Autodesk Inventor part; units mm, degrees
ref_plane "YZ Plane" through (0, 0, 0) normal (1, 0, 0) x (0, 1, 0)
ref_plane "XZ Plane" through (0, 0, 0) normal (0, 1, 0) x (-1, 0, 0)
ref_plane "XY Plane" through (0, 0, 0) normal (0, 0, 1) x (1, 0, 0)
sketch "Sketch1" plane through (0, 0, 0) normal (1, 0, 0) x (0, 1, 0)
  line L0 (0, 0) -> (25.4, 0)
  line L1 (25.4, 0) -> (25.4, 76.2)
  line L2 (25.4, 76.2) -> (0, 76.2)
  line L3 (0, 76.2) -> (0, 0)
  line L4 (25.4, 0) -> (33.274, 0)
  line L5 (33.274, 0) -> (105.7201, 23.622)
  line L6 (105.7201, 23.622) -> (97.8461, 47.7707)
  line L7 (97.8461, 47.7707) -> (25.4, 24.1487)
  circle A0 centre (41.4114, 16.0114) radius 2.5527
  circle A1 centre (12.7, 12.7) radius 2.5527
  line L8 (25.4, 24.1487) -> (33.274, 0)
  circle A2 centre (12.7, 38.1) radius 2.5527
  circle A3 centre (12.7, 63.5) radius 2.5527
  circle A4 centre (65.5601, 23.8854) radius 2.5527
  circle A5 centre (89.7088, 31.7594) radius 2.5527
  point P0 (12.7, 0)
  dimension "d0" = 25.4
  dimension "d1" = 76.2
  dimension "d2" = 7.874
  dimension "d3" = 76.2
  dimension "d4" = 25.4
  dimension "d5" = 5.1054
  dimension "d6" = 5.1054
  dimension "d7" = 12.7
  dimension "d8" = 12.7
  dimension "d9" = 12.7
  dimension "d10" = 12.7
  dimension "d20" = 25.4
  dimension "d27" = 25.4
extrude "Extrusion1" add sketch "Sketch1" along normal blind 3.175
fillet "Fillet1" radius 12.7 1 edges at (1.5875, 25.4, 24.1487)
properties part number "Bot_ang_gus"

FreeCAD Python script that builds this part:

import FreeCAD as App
import Part
import Sketcher
from FreeCAD import Vector
Q = App.Units.Quantity


def edges_at(feature, points):
    """Names of the edges that pass closest to the given points."""
    edges = feature.Shape.Edges
    near = lambda p: min(range(len(edges)), key=lambda i: edges[i].distToShape(Part.Vertex(*p))[0])
    return sorted({f"Edge{near(p) + 1}" for p in points})


def add_polygon(sketch, points):
    """Adds a closed chain of lines whose ends are joined by coincident constraints."""
    first, n = sketch.GeometryCount, len(points)
    for a, b in zip(points, points[1:] + points[:1]):
        sketch.addGeometry(Part.LineSegment(App.Vector(*a, 0), App.Vector(*b, 0)), False)
    for i in range(n):
        sketch.addConstraint(Sketcher.Constraint("Coincident", first + i, 2, first + (i + 1) % n, 1))

doc = App.newDocument("Part")
body = doc.addObject("PartDesign::Body", "Body")

# Sketch on YZ plane
sketch1 = body.newObject("Sketcher::SketchObject", "Sketch")
sketch1.AttachmentSupport = (doc.getObject("YZ_Plane"), [""])
sketch1.MapMode = "FlatFace"
add_polygon(sketch1, [(0, 76.2), (0, 0), (33.3, 0), (105.7, 23.6), (97.8, 47.8), (25.4, 24.1), (25.4, 76.2)])  # lines 0-6
sketch1.addGeometry(Part.Circle(Vector(12.7, 12.7, 0), Vector(0, 0, 1), 2.6), False)  # 7
sketch1.addGeometry(Part.Circle(Vector(12.7, 38.1, 0), Vector(0, 0, 1), 2.6), False)  # 8
sketch1.addGeometry(Part.Circle(Vector(12.7, 63.5, 0), Vector(0, 0, 1), 2.6), False)  # 9
sketch1.addGeometry(Part.Circle(Vector(89.7, 31.8, 0), Vector(0, 0, 1), 2.6), False)  # 10
sketch1.addGeometry(Part.Circle(Vector(41.4, 16, 0), Vector(0, 0, 1), 2.6), False)  # 11
sketch1.addGeometry(Part.Circle(Vector(65.6, 23.9, 0), Vector(0, 0, 1), 2.6), False)  # 12
sketch1.addConstraint([
    Sketcher.Constraint("Vertical", 0),
    Sketcher.Constraint("Horizontal", 1),
    Sketcher.Constraint("Vertical", 5),
    Sketcher.Constraint("Horizontal", 6),
    Sketcher.Constraint("Coincident", 0, 2, -1, 1),
    Sketcher.Constraint("Equal", 7, 8),
    Sketcher.Constraint("Equal", 8, 9),
    Sketcher.Constraint("Equal", 9, 10),
    Sketcher.Constraint("Equal", 10, 11),
    Sketcher.Constraint("Equal", 11, 12),
    Sketcher.Constraint("Perpendicular", 2, 3),
    Sketcher.Constraint("Perpendicular", 3, 4),
    Sketcher.Constraint("Vertical", 7, 3, 8, 3),
    Sketcher.Constraint("Vertical", 8, 3, 9, 3),
    Sketcher.Constraint("Equal", 2, 4),
    Sketcher.Constraint("DistanceX", 6, 2, 6, 1, Q("1 in")),
    Sketcher.Constraint("DistanceY", 0, 2, 0, 1, Q("3 in")),
    Sketcher.Constraint("Distance", 2, Q("3 in")),
    Sketcher.Constraint("Distance", 3, Q("1 in")),
    Sketcher.Constraint("Diameter", 7, Q("0.201 in")),
    Sketcher.Constraint("DistanceY", 7, 3, 8, 3, Q("1 in")),
    Sketcher.Constraint("DistanceY", 8, 3, 9, 3, Q("1 in")),
    Sketcher.Constraint("DistanceX", -1, 1, 7, 3, Q("0.5 in")),
    Sketcher.Constraint("DistanceY", -1, 1, 7, 3, Q("0.5 in")),
    Sketcher.Constraint("DistanceY", 12, 3, 10, 3, Q("0.31 in")),
    Sketcher.Constraint("DistanceY", 11, 3, 12, 3, Q("0.31 in")),
    Sketcher.Constraint("DistanceX", 3, 2, 2, 2, Q("0.31 in")),
    Sketcher.Constraint("DistanceX", -1, 1, 12, 3, Q("2.5811 in")),
    Sketcher.Constraint("DistanceX", -1, 1, 10, 3, 89.7088),
    Sketcher.Constraint("DistanceY", -1, 1, 10, 3, 31.7594),
    Sketcher.Constraint("DistanceX", -1, 1, 11, 3, 41.4114),
])
pad1 = body.newObject("PartDesign::Pad", "Pad")
pad1.Profile = sketch1
pad1.Length = Q("0.125 in")
doc.recompute()

fillet = body.newObject("PartDesign::Fillet", "Fillet")
fillet.Base = (pad1, edges_at(pad1, [(1.587, 25.4, 24.149)]))
fillet.Radius = Q("0.5 in")

doc.recompute()
